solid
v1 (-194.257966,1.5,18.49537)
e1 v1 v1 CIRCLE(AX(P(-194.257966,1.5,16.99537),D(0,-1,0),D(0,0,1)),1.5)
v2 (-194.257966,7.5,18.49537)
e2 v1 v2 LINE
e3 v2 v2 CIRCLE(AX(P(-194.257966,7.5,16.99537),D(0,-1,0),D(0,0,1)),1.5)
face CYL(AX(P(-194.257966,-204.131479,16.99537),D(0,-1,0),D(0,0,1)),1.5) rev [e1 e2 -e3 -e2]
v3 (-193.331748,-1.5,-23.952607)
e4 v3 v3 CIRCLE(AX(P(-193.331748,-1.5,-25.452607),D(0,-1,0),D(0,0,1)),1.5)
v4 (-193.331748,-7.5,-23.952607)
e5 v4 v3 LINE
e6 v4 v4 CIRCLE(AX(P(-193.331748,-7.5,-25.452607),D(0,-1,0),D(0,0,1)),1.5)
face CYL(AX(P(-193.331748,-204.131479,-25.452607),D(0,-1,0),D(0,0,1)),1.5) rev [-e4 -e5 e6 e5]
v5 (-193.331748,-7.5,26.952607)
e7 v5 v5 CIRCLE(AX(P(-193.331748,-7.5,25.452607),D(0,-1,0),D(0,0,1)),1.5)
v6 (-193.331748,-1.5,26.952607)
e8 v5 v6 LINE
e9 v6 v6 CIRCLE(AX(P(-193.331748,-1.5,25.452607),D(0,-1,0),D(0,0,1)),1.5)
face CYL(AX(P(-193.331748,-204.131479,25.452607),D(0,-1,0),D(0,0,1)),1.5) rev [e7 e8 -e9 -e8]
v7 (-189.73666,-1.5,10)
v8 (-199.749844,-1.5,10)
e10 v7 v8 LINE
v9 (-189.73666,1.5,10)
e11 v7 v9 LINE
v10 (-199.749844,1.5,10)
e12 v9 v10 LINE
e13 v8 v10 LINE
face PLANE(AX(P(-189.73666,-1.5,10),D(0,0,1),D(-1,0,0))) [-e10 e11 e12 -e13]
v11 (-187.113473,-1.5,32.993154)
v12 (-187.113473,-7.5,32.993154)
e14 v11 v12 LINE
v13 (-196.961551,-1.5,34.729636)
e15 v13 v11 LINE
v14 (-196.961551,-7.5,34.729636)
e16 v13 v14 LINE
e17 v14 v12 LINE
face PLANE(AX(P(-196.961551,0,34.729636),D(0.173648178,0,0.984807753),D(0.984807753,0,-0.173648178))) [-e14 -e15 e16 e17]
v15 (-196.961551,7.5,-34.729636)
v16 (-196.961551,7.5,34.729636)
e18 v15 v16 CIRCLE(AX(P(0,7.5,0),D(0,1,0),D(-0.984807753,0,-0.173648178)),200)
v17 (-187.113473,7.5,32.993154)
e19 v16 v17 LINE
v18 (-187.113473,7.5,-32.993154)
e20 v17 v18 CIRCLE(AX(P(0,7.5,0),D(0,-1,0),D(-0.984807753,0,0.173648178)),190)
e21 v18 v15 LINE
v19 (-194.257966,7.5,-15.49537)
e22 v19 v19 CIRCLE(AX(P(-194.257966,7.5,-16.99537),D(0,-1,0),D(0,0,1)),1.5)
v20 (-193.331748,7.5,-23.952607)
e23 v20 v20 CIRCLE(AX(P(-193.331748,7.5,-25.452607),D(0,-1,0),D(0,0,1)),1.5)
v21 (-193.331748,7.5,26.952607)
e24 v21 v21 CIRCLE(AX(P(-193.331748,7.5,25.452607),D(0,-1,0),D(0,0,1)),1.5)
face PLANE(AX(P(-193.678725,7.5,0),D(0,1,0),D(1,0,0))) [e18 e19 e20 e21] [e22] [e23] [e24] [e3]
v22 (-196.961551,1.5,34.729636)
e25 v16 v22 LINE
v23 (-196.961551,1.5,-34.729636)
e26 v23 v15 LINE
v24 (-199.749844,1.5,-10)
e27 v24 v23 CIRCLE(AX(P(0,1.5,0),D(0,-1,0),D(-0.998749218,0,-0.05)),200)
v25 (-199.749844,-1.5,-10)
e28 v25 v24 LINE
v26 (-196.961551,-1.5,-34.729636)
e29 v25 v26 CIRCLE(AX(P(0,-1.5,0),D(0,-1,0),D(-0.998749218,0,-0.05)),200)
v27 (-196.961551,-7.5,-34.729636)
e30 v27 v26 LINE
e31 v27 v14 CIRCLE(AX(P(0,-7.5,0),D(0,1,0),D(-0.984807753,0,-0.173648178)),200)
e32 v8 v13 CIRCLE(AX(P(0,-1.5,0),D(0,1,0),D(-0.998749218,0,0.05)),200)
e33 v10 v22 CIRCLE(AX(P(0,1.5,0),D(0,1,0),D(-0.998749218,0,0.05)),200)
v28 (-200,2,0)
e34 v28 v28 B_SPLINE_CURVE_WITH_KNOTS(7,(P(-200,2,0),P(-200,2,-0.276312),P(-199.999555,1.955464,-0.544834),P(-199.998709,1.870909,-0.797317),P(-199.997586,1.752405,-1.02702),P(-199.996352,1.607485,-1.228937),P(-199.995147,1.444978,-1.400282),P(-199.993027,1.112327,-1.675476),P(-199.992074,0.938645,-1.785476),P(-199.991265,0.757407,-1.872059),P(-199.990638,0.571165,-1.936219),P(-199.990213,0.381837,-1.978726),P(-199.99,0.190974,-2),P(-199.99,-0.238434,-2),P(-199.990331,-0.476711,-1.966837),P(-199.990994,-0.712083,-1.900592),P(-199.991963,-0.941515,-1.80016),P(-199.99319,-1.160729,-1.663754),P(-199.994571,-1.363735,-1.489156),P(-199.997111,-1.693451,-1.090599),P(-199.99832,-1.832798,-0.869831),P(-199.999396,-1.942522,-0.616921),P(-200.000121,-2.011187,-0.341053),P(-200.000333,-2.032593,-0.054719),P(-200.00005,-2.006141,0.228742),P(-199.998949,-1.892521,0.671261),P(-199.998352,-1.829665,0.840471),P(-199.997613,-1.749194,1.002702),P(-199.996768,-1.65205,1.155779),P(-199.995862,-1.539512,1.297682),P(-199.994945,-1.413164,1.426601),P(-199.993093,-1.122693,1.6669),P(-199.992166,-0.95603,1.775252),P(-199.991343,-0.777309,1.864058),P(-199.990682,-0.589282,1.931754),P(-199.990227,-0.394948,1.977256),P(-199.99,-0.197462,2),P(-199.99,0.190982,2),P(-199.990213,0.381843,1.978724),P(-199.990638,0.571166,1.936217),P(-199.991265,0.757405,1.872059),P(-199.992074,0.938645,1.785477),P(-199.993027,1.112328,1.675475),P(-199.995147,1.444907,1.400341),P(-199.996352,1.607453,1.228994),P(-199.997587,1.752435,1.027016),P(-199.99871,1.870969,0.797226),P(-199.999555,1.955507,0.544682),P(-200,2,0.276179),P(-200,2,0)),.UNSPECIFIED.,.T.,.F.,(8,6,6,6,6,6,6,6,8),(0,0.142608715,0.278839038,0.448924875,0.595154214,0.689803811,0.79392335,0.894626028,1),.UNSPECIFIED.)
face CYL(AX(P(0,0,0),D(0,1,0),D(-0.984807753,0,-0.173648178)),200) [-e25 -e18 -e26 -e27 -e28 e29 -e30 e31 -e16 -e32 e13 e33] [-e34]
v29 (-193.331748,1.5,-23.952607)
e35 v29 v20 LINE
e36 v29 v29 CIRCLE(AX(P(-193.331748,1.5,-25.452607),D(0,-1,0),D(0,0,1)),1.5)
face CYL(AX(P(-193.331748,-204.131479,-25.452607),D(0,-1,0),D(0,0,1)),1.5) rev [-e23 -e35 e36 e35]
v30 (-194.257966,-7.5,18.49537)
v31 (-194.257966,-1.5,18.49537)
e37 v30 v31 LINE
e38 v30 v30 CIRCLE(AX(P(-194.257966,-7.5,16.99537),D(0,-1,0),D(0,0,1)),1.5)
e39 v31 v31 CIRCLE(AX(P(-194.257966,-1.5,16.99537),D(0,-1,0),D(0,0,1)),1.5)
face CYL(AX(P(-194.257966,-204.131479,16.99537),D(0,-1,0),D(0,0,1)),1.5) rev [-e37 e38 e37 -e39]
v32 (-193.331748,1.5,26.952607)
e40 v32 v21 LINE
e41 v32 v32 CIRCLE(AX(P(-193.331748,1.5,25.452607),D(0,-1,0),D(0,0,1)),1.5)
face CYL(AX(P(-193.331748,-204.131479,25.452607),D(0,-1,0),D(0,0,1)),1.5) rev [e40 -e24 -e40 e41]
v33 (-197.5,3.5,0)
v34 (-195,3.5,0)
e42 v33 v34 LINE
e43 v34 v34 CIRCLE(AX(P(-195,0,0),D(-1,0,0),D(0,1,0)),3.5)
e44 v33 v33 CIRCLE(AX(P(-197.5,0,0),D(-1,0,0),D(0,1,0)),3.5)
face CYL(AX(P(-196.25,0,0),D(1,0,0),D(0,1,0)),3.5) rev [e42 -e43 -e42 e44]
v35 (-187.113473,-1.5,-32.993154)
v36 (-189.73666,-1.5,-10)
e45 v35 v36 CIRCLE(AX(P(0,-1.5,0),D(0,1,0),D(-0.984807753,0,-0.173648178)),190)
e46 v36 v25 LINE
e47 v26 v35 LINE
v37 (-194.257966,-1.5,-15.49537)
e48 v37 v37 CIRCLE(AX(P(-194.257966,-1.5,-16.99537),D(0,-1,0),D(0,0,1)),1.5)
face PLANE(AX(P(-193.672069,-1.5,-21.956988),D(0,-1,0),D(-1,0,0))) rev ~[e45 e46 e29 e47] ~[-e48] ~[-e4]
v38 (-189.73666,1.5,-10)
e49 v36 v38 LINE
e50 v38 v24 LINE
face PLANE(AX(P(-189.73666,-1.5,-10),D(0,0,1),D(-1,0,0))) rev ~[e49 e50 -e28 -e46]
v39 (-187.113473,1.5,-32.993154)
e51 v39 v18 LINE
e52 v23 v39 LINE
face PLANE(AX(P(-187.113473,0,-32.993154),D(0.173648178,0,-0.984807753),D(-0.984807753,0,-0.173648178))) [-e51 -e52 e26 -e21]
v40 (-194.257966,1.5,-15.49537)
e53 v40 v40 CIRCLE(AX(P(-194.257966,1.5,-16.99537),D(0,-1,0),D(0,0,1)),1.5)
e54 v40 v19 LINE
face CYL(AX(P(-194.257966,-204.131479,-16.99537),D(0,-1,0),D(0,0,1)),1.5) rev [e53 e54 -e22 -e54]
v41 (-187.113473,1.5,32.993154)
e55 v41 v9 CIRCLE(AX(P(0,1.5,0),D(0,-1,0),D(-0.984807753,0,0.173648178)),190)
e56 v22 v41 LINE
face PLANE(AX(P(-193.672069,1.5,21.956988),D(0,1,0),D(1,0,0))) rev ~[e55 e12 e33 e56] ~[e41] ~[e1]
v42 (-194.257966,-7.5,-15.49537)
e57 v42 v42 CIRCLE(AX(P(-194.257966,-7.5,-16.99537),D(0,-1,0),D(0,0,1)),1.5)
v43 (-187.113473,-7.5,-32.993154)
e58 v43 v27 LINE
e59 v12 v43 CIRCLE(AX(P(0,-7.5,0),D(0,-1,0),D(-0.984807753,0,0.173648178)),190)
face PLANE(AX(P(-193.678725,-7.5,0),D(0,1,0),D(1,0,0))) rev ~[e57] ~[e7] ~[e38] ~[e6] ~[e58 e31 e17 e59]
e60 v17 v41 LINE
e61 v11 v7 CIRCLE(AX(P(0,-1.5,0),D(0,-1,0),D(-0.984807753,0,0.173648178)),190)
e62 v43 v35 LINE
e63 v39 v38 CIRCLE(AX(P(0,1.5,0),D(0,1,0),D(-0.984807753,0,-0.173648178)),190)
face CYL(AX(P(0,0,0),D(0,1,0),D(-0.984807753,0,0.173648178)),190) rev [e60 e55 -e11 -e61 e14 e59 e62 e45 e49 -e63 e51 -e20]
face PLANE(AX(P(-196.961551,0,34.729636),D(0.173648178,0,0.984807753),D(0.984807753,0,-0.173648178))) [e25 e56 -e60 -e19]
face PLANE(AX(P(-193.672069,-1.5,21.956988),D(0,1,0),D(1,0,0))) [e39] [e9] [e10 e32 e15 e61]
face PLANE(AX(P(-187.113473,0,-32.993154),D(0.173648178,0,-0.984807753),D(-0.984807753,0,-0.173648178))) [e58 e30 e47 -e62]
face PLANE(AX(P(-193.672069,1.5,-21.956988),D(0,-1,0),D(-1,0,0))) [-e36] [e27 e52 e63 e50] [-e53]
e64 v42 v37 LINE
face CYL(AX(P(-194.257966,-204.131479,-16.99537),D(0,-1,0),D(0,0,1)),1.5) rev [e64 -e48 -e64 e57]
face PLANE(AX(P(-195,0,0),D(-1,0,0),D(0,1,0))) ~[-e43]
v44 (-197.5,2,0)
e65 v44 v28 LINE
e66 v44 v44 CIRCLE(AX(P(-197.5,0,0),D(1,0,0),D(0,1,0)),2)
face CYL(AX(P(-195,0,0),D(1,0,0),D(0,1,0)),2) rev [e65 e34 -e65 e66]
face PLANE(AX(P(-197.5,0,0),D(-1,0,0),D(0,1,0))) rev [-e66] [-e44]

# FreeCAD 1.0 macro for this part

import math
import FreeCAD as App
import Part
import Sketcher
Q = App.Units.Quantity

doc = App.newDocument("Part")
body = doc.addObject("PartDesign::Body", "Body")

# Sketch on XZ plane
sketch1 = body.newObject("Sketcher::SketchObject", "Sketch")
sketch1.AttachmentSupport = (doc.getObject("XZ_Plane"), [""])
sketch1.MapMode = "FlatFace"
sketch1.addGeometry([
    Part.ArcOfCircle(Part.Circle(App.Vector(0, 0, 0), App.Vector(0, 0, 1), 190), math.radians(170), math.radians(190)),
    Part.LineSegment(App.Vector(-187, -33, 0), App.Vector(-197, -35, 0)),
    Part.ArcOfCircle(Part.Circle(App.Vector(0, 0, 0), App.Vector(0, 0, 1), 200), math.radians(170), math.radians(190)),
    Part.LineSegment(App.Vector(-197, 35, 0), App.Vector(-187, 33, 0)),
], False)
sketch1.addConstraint([
    Sketcher.Constraint("Coincident", 0, 2, 1, 1),
    Sketcher.Constraint("Coincident", 1, 2, 2, 2),
    Sketcher.Constraint("Coincident", 2, 1, 3, 1),
    Sketcher.Constraint("Coincident", 3, 2, 0, 1),
    Sketcher.Constraint("Coincident", 0, 3, -1, 1),
    Sketcher.Constraint("Coincident", 2, 3, -1, 1),
    Sketcher.Constraint("Vertical", 1, 2, 2, 1),
    Sketcher.Constraint("Vertical", 0, 2, 3, 2),
    Sketcher.Constraint("Radius", 0, Q("190 mm")),
    Sketcher.Constraint("Radius", 2, Q("200 mm")),
    Sketcher.Constraint("Angle", 1, Q("-170 deg")),
    Sketcher.Constraint("DistanceX", 1, 2, -1, 1, Q("196.961551 mm")),
])
pad1 = body.newObject("PartDesign::Pad", "Pad")
pad1.Profile = sketch1
pad1.Length = 15
pad1.Midplane = True

# Sketch on XZ plane
sketch2 = body.newObject("Sketcher::SketchObject", "Sketch001")
sketch2.AttachmentSupport = (doc.getObject("XZ_Plane"), [""])
sketch2.MapMode = "FlatFace"
sketch2.AttachmentOffset = App.Placement(App.Vector(0, 0, 1.5), App.Rotation())
sketch2.addGeometry([
    Part.LineSegment(App.Vector(-190, 10, 0), App.Vector(-200, 10, 0)),  # 0
    Part.ArcOfCircle(Part.Circle(App.Vector(0, 0, 0), App.Vector(0, 0, 1), 200), math.radians(170), math.radians(177.13)),  # 1
    Part.LineSegment(App.Vector(-197, 35, 0), App.Vector(-187, 33, 0)),  # 2
    Part.ArcOfCircle(Part.Circle(App.Vector(0, 0, 0), App.Vector(0, 0, 1), 190), math.radians(170), math.radians(176.98)),  # 3
    Part.LineSegment(App.Vector(-200, -10, 0), App.Vector(-190, -10, 0)),  # 4
    Part.ArcOfCircle(Part.Circle(App.Vector(0, 0, 0), App.Vector(0, 0, 1), 190), math.radians(-176.98), math.radians(-170)),  # 5
    Part.LineSegment(App.Vector(-187, -33, 0), App.Vector(-197, -35, 0)),  # 6
    Part.ArcOfCircle(Part.Circle(App.Vector(0, 0, 0), App.Vector(0, 0, 1), 200), math.radians(-177.13), math.radians(-170)),  # 7
], False)
sketch2.addConstraint([
    Sketcher.Constraint("Coincident", 0, 2, 1, 2),
    Sketcher.Constraint("Coincident", 1, 1, 2, 1),
    Sketcher.Constraint("Coincident", 2, 2, 3, 1),
    Sketcher.Constraint("Coincident", 3, 2, 0, 1),
    Sketcher.Constraint("Coincident", 4, 2, 5, 1),
    Sketcher.Constraint("Coincident", 5, 2, 6, 1),
    Sketcher.Constraint("Coincident", 6, 2, 7, 2),
    Sketcher.Constraint("Coincident", 7, 1, 4, 1),
    Sketcher.Constraint("Horizontal", 0),
    Sketcher.Constraint("Horizontal", 4),
    Sketcher.Constraint("Coincident", 1, 3, -1, 1),
    Sketcher.Constraint("Coincident", 3, 3, -1, 1),
    Sketcher.Constraint("Coincident", 5, 3, -1, 1),
    Sketcher.Constraint("Coincident", 7, 3, -1, 1),
    Sketcher.Constraint("Equal", 3, 5),
    Sketcher.Constraint("Equal", 1, 7),
    Sketcher.Constraint("Vertical", 3, 2, 4, 2),
    Sketcher.Constraint("Vertical", 2, 2, 5, 2),
    Sketcher.Constraint("Vertical", 1, 1, 6, 2),
    Sketcher.Constraint("Radius", 1, Q("200 mm")),
    Sketcher.Constraint("Radius", 3, Q("190 mm")),
    Sketcher.Constraint("Angle", 2, Q("-10 deg")),
    Sketcher.Constraint("DistanceY", -1, 1, 0, 2, Q("10 mm")),
    Sketcher.Constraint("DistanceX", 1, 1, -1, 1, Q("196.961551 mm")),
])
pocket1 = body.newObject("PartDesign::Pocket", "Pocket")
pocket1.Profile = sketch2
pocket1.Length = 3

# Sketch on XZ plane
sketch3 = body.newObject("Sketcher::SketchObject", "Sketch002")
sketch3.AttachmentSupport = (doc.getObject("XZ_Plane"), [""])
sketch3.MapMode = "FlatFace"
sketch3.addGeometry([
    Part.Circle(App.Vector(-193.3, -25.5, 0), App.Vector(0, 0, 1), 1.5),
    Part.Circle(App.Vector(-194.3, -17, 0), App.Vector(0, 0, 1), 1.5),
    Part.Circle(App.Vector(-194.3, 17, 0), App.Vector(0, 0, 1), 1.5),
    Part.Circle(App.Vector(-193.3, 25.5, 0), App.Vector(0, 0, 1), 1.5),
], False)
sketch3.addConstraint([
    Sketcher.Constraint("Equal", 0, 1),
    Sketcher.Constraint("Equal", 1, 2),
    Sketcher.Constraint("Equal", 2, 3),
    Sketcher.Constraint("Symmetric", 1, 3, 2, 3, -1),
    Sketcher.Constraint("Symmetric", 0, 3, 3, 3, -1),
    Sketcher.Constraint("Diameter", 0, Q("3 mm")),
    Sketcher.Constraint("DistanceY", 1, 3, -1, 1, Q("16.99537 mm")),
    Sketcher.Constraint("DistanceX", 1, 3, 0, 3, Q("0.926218 mm")),
    Sketcher.Constraint("DistanceX", 0, 3, -1, 1, Q("193.331748 mm")),
    Sketcher.Constraint("DistanceY", 0, 3, -1, 1, Q("25.452607 mm")),
])
pocket2 = body.newObject("PartDesign::Pocket", "Pocket001")
pocket2.Profile = sketch3
pocket2.Type = "ThroughAll"
pocket2.Midplane = True

# Sketch on YZ plane
sketch4 = body.newObject("Sketcher::SketchObject", "Sketch003")
sketch4.AttachmentSupport = (doc.getObject("YZ_Plane"), [""])
sketch4.MapMode = "FlatFace"
sketch4.AttachmentOffset = App.Placement(App.Vector(0, 0, -195), App.Rotation())
sketch4.addGeometry(Part.Circle(App.Vector(0, 0, 0), App.Vector(0, 0, 1), 2), False)
sketch4.addConstraint([
    Sketcher.Constraint("Coincident", 0, 3, -1, 1),
    Sketcher.Constraint("Diameter", 0, Q("4 mm")),
])
pocket3 = body.newObject("PartDesign::Pocket", "Pocket002")
pocket3.Profile = sketch4
pocket3.Type = "ThroughAll"

# Sketch on XZ plane
sketch5 = body.newObject("Sketcher::SketchObject", "Sketch004")
sketch5.AttachmentSupport = (doc.getObject("XZ_Plane"), [""])
sketch5.MapMode = "FlatFace"
sketch5.addGeometry([
    Part.LineSegment(App.Vector(-197.5, -3.5, 0), App.Vector(-197.5, 0, 0)),
    Part.LineSegment(App.Vector(-197.5, 0, 0), App.Vector(-195, 0, 0)),
    Part.LineSegment(App.Vector(-195, 0, 0), App.Vector(-195, -3.5, 0)),
    Part.LineSegment(App.Vector(-195, -3.5, 0), App.Vector(-197.5, -3.5, 0)),
], False)
sketch5.addConstraint([
    Sketcher.Constraint("Coincident", 0, 2, 1, 1),
    Sketcher.Constraint("Coincident", 1, 2, 2, 1),
    Sketcher.Constraint("Coincident", 2, 2, 3, 1),
    Sketcher.Constraint("Coincident", 3, 2, 0, 1),
    Sketcher.Constraint("Vertical", 0),
    Sketcher.Constraint("Horizontal", 1),
    Sketcher.Constraint("Vertical", 2),
    Sketcher.Constraint("Horizontal", 3),
    Sketcher.Constraint("PointOnObject", 0, 2, -1),
    Sketcher.Constraint("DistanceX", 1, 1, 1, 2, Q("2.5 mm")),
    Sketcher.Constraint("DistanceY", 0, 1, 0, 2, Q("3.5 mm")),
    Sketcher.Constraint("DistanceX", 1, 2, -1, 1, Q("195 mm")),
])
groove = body.newObject("PartDesign::Groove", "Groove")
groove.Profile = sketch5
groove.ReferenceAxis = (sketch5, ["H_Axis"])
groove.Angle = 360

doc.recompute()
